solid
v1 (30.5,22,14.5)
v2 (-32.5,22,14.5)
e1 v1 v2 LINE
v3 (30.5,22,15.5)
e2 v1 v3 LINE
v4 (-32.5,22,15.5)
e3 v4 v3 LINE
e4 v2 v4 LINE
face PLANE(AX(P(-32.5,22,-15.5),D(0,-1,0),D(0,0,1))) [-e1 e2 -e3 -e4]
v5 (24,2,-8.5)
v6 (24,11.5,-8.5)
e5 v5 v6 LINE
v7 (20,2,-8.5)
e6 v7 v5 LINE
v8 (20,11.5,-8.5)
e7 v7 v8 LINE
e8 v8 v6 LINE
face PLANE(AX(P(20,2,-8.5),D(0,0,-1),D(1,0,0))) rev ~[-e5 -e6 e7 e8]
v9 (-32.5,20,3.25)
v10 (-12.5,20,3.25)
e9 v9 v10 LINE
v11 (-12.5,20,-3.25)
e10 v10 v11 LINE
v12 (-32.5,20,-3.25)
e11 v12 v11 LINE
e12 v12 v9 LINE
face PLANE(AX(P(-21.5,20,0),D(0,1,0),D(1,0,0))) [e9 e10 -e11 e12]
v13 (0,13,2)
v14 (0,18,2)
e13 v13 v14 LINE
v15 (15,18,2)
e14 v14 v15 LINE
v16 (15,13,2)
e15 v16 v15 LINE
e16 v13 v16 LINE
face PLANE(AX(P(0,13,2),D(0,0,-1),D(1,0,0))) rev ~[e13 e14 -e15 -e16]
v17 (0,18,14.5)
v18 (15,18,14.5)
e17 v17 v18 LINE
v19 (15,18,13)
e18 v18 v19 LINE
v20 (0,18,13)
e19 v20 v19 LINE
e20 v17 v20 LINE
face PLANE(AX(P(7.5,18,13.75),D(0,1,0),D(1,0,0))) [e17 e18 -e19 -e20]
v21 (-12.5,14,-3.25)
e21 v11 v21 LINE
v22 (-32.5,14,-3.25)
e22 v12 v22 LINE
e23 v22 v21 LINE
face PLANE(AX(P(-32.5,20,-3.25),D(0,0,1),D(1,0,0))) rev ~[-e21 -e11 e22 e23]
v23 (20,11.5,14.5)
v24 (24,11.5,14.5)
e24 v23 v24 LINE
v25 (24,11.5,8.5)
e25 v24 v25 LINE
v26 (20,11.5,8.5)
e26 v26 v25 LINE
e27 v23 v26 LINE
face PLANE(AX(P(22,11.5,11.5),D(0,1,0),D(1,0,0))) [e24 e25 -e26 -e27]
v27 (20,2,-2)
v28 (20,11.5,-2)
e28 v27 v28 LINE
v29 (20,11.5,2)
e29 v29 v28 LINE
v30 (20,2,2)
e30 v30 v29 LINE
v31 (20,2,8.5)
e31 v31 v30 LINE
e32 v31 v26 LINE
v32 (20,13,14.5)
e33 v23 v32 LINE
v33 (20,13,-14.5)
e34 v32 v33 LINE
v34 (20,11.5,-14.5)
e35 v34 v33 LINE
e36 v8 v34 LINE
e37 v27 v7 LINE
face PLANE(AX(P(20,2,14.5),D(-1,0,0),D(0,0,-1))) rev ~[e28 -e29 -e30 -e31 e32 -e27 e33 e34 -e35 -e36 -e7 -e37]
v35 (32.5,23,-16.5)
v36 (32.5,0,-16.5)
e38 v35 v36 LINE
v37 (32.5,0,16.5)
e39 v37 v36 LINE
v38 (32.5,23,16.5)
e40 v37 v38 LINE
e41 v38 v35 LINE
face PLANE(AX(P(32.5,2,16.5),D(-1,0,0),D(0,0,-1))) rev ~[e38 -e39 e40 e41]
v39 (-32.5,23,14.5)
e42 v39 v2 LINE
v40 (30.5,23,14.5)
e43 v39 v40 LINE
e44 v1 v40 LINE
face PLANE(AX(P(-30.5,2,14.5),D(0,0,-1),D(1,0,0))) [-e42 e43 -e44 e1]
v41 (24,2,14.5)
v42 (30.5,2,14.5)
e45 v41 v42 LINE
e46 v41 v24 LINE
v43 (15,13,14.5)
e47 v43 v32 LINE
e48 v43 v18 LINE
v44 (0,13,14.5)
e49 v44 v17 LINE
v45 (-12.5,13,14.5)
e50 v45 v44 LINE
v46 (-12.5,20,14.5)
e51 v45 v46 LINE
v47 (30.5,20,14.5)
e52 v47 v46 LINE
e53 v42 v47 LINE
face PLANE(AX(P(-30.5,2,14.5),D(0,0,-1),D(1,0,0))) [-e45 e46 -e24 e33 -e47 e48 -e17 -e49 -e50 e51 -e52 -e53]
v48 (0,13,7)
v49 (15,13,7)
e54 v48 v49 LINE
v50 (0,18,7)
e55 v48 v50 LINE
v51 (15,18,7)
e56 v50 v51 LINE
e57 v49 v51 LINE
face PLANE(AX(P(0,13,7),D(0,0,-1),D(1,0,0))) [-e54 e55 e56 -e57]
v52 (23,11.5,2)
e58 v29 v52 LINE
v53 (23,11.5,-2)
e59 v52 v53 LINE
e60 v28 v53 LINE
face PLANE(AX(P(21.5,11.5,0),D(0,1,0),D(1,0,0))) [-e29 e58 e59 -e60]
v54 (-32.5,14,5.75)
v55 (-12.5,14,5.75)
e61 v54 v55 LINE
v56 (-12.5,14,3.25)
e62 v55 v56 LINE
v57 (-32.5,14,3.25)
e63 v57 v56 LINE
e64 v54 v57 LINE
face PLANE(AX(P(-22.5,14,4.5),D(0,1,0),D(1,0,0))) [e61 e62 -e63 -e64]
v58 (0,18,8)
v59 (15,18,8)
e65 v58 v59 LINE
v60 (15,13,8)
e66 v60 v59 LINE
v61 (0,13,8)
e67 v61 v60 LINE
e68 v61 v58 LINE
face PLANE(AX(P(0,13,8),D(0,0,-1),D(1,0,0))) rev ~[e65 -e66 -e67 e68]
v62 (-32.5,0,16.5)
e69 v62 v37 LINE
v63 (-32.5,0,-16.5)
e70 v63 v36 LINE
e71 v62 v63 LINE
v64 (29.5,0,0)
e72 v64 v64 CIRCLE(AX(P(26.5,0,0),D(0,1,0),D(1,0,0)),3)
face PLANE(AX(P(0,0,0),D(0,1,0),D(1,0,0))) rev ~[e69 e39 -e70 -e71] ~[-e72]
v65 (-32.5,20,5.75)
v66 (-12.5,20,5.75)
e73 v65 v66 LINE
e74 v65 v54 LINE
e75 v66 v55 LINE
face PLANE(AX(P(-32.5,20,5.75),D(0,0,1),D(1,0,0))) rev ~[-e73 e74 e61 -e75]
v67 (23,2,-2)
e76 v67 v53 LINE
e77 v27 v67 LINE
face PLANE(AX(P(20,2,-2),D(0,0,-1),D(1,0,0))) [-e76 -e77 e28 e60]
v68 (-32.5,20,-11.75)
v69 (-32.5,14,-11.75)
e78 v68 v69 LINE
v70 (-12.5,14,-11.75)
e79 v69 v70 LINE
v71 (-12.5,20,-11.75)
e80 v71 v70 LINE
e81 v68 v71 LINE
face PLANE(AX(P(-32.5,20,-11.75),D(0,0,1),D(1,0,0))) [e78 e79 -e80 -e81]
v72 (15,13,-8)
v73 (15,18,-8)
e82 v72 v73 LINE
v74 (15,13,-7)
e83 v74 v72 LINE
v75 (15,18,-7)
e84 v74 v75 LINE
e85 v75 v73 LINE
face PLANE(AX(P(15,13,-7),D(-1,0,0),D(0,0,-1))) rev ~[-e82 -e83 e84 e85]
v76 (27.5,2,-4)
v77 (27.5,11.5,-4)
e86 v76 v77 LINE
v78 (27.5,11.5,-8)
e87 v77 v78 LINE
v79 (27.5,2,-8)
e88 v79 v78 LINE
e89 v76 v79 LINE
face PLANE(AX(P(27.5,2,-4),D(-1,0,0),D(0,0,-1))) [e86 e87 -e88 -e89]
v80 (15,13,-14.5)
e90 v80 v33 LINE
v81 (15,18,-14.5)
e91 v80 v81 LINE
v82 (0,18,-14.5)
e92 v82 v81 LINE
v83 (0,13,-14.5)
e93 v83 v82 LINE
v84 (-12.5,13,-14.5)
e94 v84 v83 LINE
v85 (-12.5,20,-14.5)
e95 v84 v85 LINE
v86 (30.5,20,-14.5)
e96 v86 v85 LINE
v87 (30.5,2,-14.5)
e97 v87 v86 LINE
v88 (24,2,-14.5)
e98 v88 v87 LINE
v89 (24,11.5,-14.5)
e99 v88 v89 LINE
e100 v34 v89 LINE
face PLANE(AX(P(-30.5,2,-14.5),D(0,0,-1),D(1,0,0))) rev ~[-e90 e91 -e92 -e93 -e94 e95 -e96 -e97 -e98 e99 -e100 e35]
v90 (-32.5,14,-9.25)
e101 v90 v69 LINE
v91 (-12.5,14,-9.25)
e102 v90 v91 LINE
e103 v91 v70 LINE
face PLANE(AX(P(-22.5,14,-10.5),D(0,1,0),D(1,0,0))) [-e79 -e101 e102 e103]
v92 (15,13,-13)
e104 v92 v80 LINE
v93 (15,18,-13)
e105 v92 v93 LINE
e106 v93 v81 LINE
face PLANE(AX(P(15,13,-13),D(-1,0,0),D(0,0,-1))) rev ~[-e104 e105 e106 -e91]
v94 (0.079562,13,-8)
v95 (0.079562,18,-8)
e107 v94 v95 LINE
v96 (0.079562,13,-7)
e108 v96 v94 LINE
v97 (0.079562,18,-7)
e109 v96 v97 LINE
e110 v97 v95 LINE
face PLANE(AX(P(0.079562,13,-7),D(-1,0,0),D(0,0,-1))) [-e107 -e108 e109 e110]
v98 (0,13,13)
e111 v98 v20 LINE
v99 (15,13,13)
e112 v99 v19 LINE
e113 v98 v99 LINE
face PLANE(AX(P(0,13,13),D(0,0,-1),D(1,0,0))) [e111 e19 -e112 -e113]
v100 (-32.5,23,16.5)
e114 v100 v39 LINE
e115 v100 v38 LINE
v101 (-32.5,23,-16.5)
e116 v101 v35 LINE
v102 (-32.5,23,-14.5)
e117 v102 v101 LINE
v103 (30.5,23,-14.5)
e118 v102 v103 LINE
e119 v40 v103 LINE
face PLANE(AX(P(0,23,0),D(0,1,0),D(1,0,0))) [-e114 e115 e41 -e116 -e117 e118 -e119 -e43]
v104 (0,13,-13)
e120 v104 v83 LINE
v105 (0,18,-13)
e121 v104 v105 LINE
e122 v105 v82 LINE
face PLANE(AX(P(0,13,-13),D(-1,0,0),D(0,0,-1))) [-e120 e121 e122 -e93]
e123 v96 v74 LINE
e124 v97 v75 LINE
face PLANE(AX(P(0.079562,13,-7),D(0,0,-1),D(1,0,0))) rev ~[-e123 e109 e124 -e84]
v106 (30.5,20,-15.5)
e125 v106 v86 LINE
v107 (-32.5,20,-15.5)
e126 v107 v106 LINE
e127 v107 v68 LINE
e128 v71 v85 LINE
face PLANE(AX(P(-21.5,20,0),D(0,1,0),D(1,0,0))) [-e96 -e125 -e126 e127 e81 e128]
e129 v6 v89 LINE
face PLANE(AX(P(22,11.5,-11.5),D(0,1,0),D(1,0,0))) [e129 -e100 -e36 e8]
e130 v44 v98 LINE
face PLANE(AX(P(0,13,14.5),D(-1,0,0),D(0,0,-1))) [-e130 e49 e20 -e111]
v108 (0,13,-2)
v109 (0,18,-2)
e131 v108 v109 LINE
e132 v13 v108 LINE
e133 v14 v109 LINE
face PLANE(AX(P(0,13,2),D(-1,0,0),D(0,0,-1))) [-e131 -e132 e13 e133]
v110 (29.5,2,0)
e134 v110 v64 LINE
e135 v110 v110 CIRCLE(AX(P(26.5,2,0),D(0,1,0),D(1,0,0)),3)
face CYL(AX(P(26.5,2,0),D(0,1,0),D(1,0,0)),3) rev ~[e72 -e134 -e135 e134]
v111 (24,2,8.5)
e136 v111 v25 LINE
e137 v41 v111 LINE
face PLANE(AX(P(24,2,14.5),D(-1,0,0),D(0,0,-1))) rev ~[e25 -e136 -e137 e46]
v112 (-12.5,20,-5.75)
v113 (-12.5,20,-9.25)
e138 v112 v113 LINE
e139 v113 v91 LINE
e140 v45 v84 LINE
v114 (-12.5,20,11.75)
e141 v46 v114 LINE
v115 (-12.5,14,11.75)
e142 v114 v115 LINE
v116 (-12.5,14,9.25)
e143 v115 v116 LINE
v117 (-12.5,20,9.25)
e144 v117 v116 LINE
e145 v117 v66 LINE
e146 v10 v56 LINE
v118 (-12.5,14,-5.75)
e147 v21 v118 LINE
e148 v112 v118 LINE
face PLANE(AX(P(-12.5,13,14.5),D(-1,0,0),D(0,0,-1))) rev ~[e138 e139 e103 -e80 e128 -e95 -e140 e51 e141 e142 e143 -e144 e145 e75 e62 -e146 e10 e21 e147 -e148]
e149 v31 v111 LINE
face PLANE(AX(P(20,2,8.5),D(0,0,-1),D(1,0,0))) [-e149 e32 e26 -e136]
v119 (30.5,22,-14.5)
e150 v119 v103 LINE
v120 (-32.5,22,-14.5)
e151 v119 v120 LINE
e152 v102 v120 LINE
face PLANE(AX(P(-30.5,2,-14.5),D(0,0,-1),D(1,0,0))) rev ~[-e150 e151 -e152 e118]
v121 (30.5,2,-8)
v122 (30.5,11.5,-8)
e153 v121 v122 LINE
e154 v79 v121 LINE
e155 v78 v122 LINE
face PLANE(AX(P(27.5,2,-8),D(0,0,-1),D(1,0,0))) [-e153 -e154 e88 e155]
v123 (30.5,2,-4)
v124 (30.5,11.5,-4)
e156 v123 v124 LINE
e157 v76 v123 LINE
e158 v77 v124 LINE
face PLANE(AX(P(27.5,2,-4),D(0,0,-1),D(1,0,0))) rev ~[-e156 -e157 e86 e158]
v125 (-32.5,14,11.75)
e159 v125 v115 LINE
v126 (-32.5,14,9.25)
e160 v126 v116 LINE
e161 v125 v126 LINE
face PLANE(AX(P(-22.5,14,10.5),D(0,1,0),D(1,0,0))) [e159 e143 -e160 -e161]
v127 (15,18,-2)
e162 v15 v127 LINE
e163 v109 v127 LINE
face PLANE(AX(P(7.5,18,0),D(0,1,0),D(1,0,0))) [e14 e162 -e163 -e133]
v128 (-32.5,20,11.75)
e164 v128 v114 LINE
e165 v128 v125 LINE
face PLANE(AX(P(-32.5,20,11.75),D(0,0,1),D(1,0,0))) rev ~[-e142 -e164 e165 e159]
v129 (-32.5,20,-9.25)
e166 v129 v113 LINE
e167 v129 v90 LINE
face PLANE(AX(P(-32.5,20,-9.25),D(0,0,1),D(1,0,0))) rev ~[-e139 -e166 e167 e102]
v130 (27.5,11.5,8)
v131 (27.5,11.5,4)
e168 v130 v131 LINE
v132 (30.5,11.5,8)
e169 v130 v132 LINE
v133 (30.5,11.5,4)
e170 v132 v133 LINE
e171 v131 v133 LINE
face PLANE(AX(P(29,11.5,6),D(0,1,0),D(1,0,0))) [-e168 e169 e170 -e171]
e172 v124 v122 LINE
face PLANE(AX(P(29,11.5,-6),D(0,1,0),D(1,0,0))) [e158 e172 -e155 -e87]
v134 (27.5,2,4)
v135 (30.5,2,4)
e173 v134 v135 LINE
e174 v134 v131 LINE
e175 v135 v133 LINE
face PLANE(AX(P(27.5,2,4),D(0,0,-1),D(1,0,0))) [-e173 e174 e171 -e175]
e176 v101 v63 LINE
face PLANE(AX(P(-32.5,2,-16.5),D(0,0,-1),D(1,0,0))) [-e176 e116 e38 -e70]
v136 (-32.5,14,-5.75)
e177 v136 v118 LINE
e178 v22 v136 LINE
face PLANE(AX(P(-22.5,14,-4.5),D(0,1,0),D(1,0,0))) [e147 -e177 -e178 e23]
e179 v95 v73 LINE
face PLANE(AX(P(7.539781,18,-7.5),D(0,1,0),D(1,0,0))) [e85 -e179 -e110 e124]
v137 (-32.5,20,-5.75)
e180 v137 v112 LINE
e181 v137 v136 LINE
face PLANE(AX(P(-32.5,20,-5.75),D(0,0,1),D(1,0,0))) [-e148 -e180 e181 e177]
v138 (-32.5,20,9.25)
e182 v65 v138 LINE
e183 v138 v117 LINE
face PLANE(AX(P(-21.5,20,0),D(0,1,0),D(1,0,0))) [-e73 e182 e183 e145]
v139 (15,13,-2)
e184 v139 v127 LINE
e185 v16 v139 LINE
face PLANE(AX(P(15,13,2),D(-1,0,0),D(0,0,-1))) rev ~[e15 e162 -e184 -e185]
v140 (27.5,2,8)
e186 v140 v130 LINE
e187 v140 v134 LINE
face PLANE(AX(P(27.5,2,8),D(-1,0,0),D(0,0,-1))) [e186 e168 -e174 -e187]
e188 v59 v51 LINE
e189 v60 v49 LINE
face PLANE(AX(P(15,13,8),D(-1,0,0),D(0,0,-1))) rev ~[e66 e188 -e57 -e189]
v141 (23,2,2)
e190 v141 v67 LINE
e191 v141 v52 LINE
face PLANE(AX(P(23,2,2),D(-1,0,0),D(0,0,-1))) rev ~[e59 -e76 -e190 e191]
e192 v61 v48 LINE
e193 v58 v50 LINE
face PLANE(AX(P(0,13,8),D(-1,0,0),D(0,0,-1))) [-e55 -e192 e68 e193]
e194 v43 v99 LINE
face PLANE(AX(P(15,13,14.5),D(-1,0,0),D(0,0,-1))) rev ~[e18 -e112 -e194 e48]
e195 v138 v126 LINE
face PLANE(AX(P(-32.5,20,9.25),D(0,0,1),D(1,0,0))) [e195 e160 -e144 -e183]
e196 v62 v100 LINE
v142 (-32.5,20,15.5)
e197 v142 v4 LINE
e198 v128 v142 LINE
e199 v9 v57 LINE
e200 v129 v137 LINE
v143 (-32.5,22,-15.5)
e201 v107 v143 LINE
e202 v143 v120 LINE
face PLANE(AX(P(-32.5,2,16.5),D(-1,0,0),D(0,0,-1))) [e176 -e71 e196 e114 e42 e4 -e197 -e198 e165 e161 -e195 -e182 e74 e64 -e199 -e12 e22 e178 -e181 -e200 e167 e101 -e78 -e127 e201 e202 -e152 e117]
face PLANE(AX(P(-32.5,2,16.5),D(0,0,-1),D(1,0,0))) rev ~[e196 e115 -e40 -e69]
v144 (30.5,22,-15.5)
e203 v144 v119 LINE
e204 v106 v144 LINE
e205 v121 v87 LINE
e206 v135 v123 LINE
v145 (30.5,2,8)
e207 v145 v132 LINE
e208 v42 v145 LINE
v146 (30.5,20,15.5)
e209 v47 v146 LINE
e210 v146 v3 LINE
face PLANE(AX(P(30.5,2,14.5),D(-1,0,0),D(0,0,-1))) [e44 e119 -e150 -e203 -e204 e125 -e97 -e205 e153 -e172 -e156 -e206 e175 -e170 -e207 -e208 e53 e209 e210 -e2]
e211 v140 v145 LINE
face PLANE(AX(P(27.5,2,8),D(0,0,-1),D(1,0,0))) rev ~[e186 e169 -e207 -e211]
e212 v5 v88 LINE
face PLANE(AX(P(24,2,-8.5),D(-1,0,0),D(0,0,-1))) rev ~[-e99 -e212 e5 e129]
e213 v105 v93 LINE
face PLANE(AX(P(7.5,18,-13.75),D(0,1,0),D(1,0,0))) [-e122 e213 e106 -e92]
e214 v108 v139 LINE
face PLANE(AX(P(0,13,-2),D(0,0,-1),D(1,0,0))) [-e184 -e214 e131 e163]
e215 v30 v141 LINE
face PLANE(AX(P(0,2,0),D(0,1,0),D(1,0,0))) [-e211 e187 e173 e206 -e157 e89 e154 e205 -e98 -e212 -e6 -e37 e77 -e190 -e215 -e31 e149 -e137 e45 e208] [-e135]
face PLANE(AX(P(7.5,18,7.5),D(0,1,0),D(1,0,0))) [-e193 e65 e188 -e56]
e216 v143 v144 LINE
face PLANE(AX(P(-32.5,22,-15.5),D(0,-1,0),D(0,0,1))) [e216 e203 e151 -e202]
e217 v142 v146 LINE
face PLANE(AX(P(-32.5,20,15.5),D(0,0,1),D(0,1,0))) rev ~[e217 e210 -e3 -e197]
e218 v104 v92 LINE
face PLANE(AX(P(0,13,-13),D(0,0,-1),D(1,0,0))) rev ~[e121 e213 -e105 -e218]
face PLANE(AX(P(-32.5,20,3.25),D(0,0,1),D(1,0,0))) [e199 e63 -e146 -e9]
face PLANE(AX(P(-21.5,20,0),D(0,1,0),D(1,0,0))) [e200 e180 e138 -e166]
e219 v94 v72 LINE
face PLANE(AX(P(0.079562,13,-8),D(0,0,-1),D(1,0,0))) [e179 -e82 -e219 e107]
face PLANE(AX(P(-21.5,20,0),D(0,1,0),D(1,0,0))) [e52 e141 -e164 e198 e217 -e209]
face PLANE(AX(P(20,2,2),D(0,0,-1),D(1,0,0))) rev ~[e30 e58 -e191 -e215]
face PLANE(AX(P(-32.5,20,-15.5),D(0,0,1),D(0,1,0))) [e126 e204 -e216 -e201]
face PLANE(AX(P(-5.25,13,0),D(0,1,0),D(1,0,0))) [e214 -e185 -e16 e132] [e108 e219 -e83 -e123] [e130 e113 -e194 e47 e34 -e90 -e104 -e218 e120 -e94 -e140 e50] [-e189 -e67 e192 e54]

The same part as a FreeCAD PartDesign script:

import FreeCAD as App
import Part
import Sketcher
Q = App.Units.Quantity


def add_polygon(sketch, points):
    """Adds a closed chain of lines whose ends are joined by coincident constraints."""
    first, n = sketch.GeometryCount, len(points)
    for a, b in zip(points, points[1:] + points[:1]):
        sketch.addGeometry(Part.LineSegment(App.Vector(*a, 0), App.Vector(*b, 0)), False)
    for i in range(n):
        sketch.addConstraint(Sketcher.Constraint("Coincident", first + i, 2, first + (i + 1) % n, 1))

doc = App.newDocument("Part")
body = doc.addObject("PartDesign::Body", "Body")

# Sketch on XZ plane
sketch1 = body.newObject("Sketcher::SketchObject", "Sketch")
sketch1.AttachmentSupport = (doc.getObject("XZ_Plane"), [""])
sketch1.MapMode = "FlatFace"
add_polygon(sketch1, [(-32.5, -16.5), (-32.5, 16.5), (32.5, 16.5), (32.5, -16.5)])  # lines 0-3
sketch1.addConstraint(Sketcher.Constraint("Vertical", 0))
sketch1.addConstraint(Sketcher.Constraint("Horizontal", 1))
sketch1.addConstraint(Sketcher.Constraint("Vertical", 2))
sketch1.addConstraint(Sketcher.Constraint("Horizontal", 3))
sketch1.addConstraint(Sketcher.Constraint("Symmetric", 0, 2, 2, 2, -1, 1))
sketch1.addConstraint(Sketcher.Constraint("DistanceX", 1, 1, 1, 2, Q("65 mm")))
sketch1.addConstraint(Sketcher.Constraint("DistanceY", 0, 1, 0, 2, Q("33 mm")))
pad1 = body.newObject("PartDesign::Pad", "Pad")
pad1.Profile = sketch1
pad1.Length = 2
pad1.Reversed = True

# Sketch on XZ plane
sketch2 = body.newObject("Sketcher::SketchObject", "Sketch001")
sketch2.AttachmentSupport = (doc.getObject("XZ_Plane"), [""])
sketch2.MapMode = "FlatFace"
sketch2.AttachmentOffset = App.Placement(App.Vector(0, 0, -2), App.Rotation())
add_polygon(sketch2, [(-32.5, -16.5), (-32.5, 16.5), (32.5, 16.5), (32.5, -16.5)])  # lines 0-3
add_polygon(sketch2, [(30.5, 14.5), (-30.5, 14.5), (-30.5, -14.5), (30.5, -14.5)])  # lines 4-7
sketch2.addConstraint(Sketcher.Constraint("Vertical", 0))
sketch2.addConstraint(Sketcher.Constraint("Horizontal", 1))
sketch2.addConstraint(Sketcher.Constraint("Vertical", 2))
sketch2.addConstraint(Sketcher.Constraint("Horizontal", 3))
sketch2.addConstraint(Sketcher.Constraint("Horizontal", 4))
sketch2.addConstraint(Sketcher.Constraint("Vertical", 5))
sketch2.addConstraint(Sketcher.Constraint("Horizontal", 6))
sketch2.addConstraint(Sketcher.Constraint("Vertical", 7))
sketch2.addConstraint(Sketcher.Constraint("Symmetric", 0, 2, 2, 2, -1, 1))
sketch2.addConstraint(Sketcher.Constraint("Symmetric", 4, 2, 6, 2, -1, 1))
sketch2.addConstraint(Sketcher.Constraint("DistanceX", 1, 1, 1, 2, Q("65 mm")))
sketch2.addConstraint(Sketcher.Constraint("DistanceX", 4, 2, 4, 1, Q("61 mm")))
sketch2.addConstraint(Sketcher.Constraint("DistanceY", 0, 1, 0, 2, Q("33 mm")))
sketch2.addConstraint(Sketcher.Constraint("DistanceY", 5, 2, 5, 1, Q("29 mm")))
pad2 = body.newObject("PartDesign::Pad", "Pad001")
pad2.Profile = sketch2
pad2.Length = 21
pad2.Reversed = True

# Sketch on XZ plane
sketch3 = body.newObject("Sketcher::SketchObject", "Sketch002")
sketch3.AttachmentSupport = (doc.getObject("XZ_Plane"), [""])
sketch3.MapMode = "FlatFace"
sketch3.AttachmentOffset = App.Placement(App.Vector(0, 0, -2), App.Rotation())
add_polygon(sketch3, [(-30.5, -14.5), (-30.5, 14.5), (20, 14.5), (20, -14.5)])  # lines 0-3
sketch3.addConstraint(Sketcher.Constraint("Vertical", 0))
sketch3.addConstraint(Sketcher.Constraint("Horizontal", 1))
sketch3.addConstraint(Sketcher.Constraint("Vertical", 2))
sketch3.addConstraint(Sketcher.Constraint("Horizontal", 3))
sketch3.addConstraint(Sketcher.Constraint("DistanceY", 0, 1, 0, 2, Q("29 mm")))
sketch3.addConstraint(Sketcher.Constraint("DistanceX", 1, 1, 1, 2, Q("50.5 mm")))
sketch3.addConstraint(Sketcher.Constraint("DistanceX", -1, 1, 1, 2, Q("20 mm")))
sketch3.addConstraint(Sketcher.Constraint("DistanceY", -1, 1, 0, 2, Q("14.5 mm")))
pad3 = body.newObject("PartDesign::Pad", "Pad002")
pad3.Profile = sketch3
pad3.Length = 11
pad3.Reversed = True

# Sketch on XZ plane
sketch4 = body.newObject("Sketcher::SketchObject", "Sketch003")
sketch4.AttachmentSupport = (doc.getObject("XZ_Plane"), [""])
sketch4.MapMode = "FlatFace"
sketch4.AttachmentOffset = App.Placement(App.Vector(0, 0, -2), App.Rotation())
sketch4.addGeometry(Part.Circle(App.Vector(26.5, 0, 0), App.Vector(0, 0, 1), 3), False)
sketch4.addConstraint(Sketcher.Constraint("PointOnObject", 0, 3, -1))
sketch4.addConstraint(Sketcher.Constraint("Diameter", 0, Q("6 mm")))
sketch4.addConstraint(Sketcher.Constraint("DistanceX", -1, 1, 0, 3, Q("26.5 mm")))
pocket1 = body.newObject("PartDesign::Pocket", "Pocket")
pocket1.Profile = sketch4
pocket1.Length = 2
pocket1.Reversed = True

# Sketch on XZ plane
sketch5 = body.newObject("Sketcher::SketchObject", "Sketch004")
sketch5.AttachmentSupport = (doc.getObject("XZ_Plane"), [""])
sketch5.MapMode = "FlatFace"
sketch5.AttachmentOffset = App.Placement(App.Vector(0, 0, -2), App.Rotation())
add_polygon(sketch5, [(20, -14.5), (20, -8.5), (24, -8.5), (24, -14.5)])  # lines 0-3
sketch5.addConstraint(Sketcher.Constraint("Vertical", 0))
sketch5.addConstraint(Sketcher.Constraint("Horizontal", 1))
sketch5.addConstraint(Sketcher.Constraint("Vertical", 2))
sketch5.addConstraint(Sketcher.Constraint("Horizontal", 3))
sketch5.addConstraint(Sketcher.Constraint("DistanceX", 1, 1, 1, 2, Q("4 mm")))
sketch5.addConstraint(Sketcher.Constraint("DistanceY", 0, 1, 0, 2, Q("6 mm")))
sketch5.addConstraint(Sketcher.Constraint("DistanceX", -1, 1, 0, 2, Q("20 mm")))
sketch5.addConstraint(Sketcher.Constraint("DistanceY", 0, 2, -1, 1, Q("8.5 mm")))
pad4 = body.newObject("PartDesign::Pad", "Pad003")
pad4.Profile = sketch5
pad4.Length = 9.5
pad4.Reversed = True

# Sketch on XZ plane
sketch6 = body.newObject("Sketcher::SketchObject", "Sketch005")
sketch6.AttachmentSupport = (doc.getObject("XZ_Plane"), [""])
sketch6.MapMode = "FlatFace"
sketch6.AttachmentOffset = App.Placement(App.Vector(0, 0, -2), App.Rotation())
add_polygon(sketch6, [(20, 8.5), (20, 14.5), (24, 14.5), (24, 8.5)])  # lines 0-3
sketch6.addConstraint(Sketcher.Constraint("Vertical", 0))
sketch6.addConstraint(Sketcher.Constraint("Horizontal", 1))
sketch6.addConstraint(Sketcher.Constraint("Vertical", 2))
sketch6.addConstraint(Sketcher.Constraint("Horizontal", 3))
sketch6.addConstraint(Sketcher.Constraint("DistanceX", 1, 1, 1, 2, Q("4 mm")))
sketch6.addConstraint(Sketcher.Constraint("DistanceY", 0, 1, 0, 2, Q("6 mm")))
sketch6.addConstraint(Sketcher.Constraint("DistanceX", -1, 1, 0, 2, Q("20 mm")))
sketch6.addConstraint(Sketcher.Constraint("DistanceY", -1, 1, 0, 2, Q("14.5 mm")))
pad5 = body.newObject("PartDesign::Pad", "Pad004")
pad5.Profile = sketch6
pad5.Length = 9.5
pad5.Reversed = True

# Sketch on XZ plane
sketch7 = body.newObject("Sketcher::SketchObject", "Sketch006")
sketch7.AttachmentSupport = (doc.getObject("XZ_Plane"), [""])
sketch7.MapMode = "FlatFace"
sketch7.AttachmentOffset = App.Placement(App.Vector(0, 0, -2), App.Rotation())
add_polygon(sketch7, [(27.5, -8), (27.5, -4), (30.5, -4), (30.5, -8)])  # lines 0-3
sketch7.addConstraint(Sketcher.Constraint("Vertical", 0))
sketch7.addConstraint(Sketcher.Constraint("Horizontal", 1))
sketch7.addConstraint(Sketcher.Constraint("Vertical", 2))
sketch7.addConstraint(Sketcher.Constraint("Horizontal", 3))
sketch7.addConstraint(Sketcher.Constraint("DistanceX", 1, 1, 1, 2, Q("3 mm")))
sketch7.addConstraint(Sketcher.Constraint("DistanceY", 0, 1, 0, 2, Q("4 mm")))
sketch7.addConstraint(Sketcher.Constraint("DistanceY", 0, 2, -1, 1, Q("4 mm")))
sketch7.addConstraint(Sketcher.Constraint("DistanceX", -1, 1, 0, 2, Q("27.5 mm")))
pad6 = body.newObject("PartDesign::Pad", "Pad005")
pad6.Profile = sketch7
pad6.Length = 9.5
pad6.Reversed = True

# Sketch on XZ plane
sketch8 = body.newObject("Sketcher::SketchObject", "Sketch007")
sketch8.AttachmentSupport = (doc.getObject("XZ_Plane"), [""])
sketch8.MapMode = "FlatFace"
sketch8.AttachmentOffset = App.Placement(App.Vector(0, 0, -2), App.Rotation())
add_polygon(sketch8, [(27.5, 4), (27.5, 8), (30.5, 8), (30.5, 4)])  # lines 0-3
sketch8.addConstraint(Sketcher.Constraint("Vertical", 0))
sketch8.addConstraint(Sketcher.Constraint("Horizontal", 1))
sketch8.addConstraint(Sketcher.Constraint("Vertical", 2))
sketch8.addConstraint(Sketcher.Constraint("Horizontal", 3))
sketch8.addConstraint(Sketcher.Constraint("DistanceX", 1, 1, 1, 2, Q("3 mm")))
sketch8.addConstraint(Sketcher.Constraint("DistanceY", 0, 1, 0, 2, Q("4 mm")))
sketch8.addConstraint(Sketcher.Constraint("DistanceY", -1, 1, 0, 2, Q("8 mm")))
sketch8.addConstraint(Sketcher.Constraint("DistanceX", -1, 1, 0, 2, Q("27.5 mm")))
pad7 = body.newObject("PartDesign::Pad", "Pad006")
pad7.Profile = sketch8
pad7.Length = 9.5
pad7.Reversed = True

# Sketch on XZ plane
sketch9 = body.newObject("Sketcher::SketchObject", "Sketch008")
sketch9.AttachmentSupport = (doc.getObject("XZ_Plane"), [""])
sketch9.MapMode = "FlatFace"
sketch9.AttachmentOffset = App.Placement(App.Vector(0, 0, -2), App.Rotation())
add_polygon(sketch9, [(20, -2), (20, 2), (23, 2), (23, -2)])  # lines 0-3
sketch9.addConstraint(Sketcher.Constraint("Vertical", 0))
sketch9.addConstraint(Sketcher.Constraint("Horizontal", 1))
sketch9.addConstraint(Sketcher.Constraint("Vertical", 2))
sketch9.addConstraint(Sketcher.Constraint("Horizontal", 3))
sketch9.addConstraint(Sketcher.Constraint("DistanceX", 1, 1, 1, 2, Q("3 mm")))
sketch9.addConstraint(Sketcher.Constraint("DistanceY", 0, 1, 0, 2, Q("4 mm")))
sketch9.addConstraint(Sketcher.Constraint("DistanceX", -1, 1, 0, 2, Q("20 mm")))
sketch9.addConstraint(Sketcher.Constraint("DistanceY", -1, 1, 0, 2, Q("2 mm")))
pad8 = body.newObject("PartDesign::Pad", "Pad007")
pad8.Profile = sketch9
pad8.Length = 9.5
pad8.Reversed = True

# Sketch on XZ plane
sketch10 = body.newObject("Sketcher::SketchObject", "Sketch009")
sketch10.AttachmentSupport = (doc.getObject("XZ_Plane"), [""])
sketch10.MapMode = "FlatFace"
sketch10.AttachmentOffset = App.Placement(App.Vector(0, 0, -23), App.Rotation())
add_polygon(sketch10, [(-32.5, -14.5), (-32.5, 14.5), (-30.5, 14.5), (-30.5, -14.5)])  # lines 0-3
sketch10.addConstraint(Sketcher.Constraint("Vertical", 0))
sketch10.addConstraint(Sketcher.Constraint("Horizontal", 1))
sketch10.addConstraint(Sketcher.Constraint("Vertical", 2))
sketch10.addConstraint(Sketcher.Constraint("Horizontal", 3))
sketch10.addConstraint(Sketcher.Constraint("DistanceX", 1, 1, 1, 2, Q("2 mm")))
sketch10.addConstraint(Sketcher.Constraint("DistanceY", 0, 1, 0, 2, Q("29 mm")))
sketch10.addConstraint(Sketcher.Constraint("DistanceX", 0, 2, -1, 1, Q("32.5 mm")))
sketch10.addConstraint(Sketcher.Constraint("DistanceY", -1, 1, 0, 2, Q("14.5 mm")))
pocket2 = body.newObject("PartDesign::Pocket", "Pocket001")
pocket2.Profile = sketch10
pocket2.Length = 3
pocket2.Reversed = True

# Sketch on YZ plane
sketch11 = body.newObject("Sketcher::SketchObject", "Sketch010")
sketch11.AttachmentSupport = (doc.getObject("YZ_Plane"), [""])
sketch11.MapMode = "FlatFace"
sketch11.AttachmentOffset = App.Placement(App.Vector(0, 0, -32.5), App.Rotation())
add_polygon(sketch11, [(22, -15.5), (20, -15.5), (20, 15.5), (22, 15.5)])  # lines 0-3
sketch11.addConstraint(Sketcher.Constraint("Horizontal", 0))
sketch11.addConstraint(Sketcher.Constraint("Vertical", 1))
sketch11.addConstraint(Sketcher.Constraint("Horizontal", 2))
sketch11.addConstraint(Sketcher.Constraint("Vertical", 3))
sketch11.addConstraint(Sketcher.Constraint("DistanceX", 0, 2, 0, 1, Q("2 mm")))
sketch11.addConstraint(Sketcher.Constraint("DistanceY", 1, 1, 1, 2, Q("31 mm")))
sketch11.addConstraint(Sketcher.Constraint("DistanceX", -1, 1, 0, 2, Q("20 mm")))
sketch11.addConstraint(Sketcher.Constraint("DistanceY", 0, 2, -1, 1, Q("15.5 mm")))
pocket3 = body.newObject("PartDesign::Pocket", "Pocket002")
pocket3.Profile = sketch11
pocket3.Length = 63
pocket3.Reversed = True

# Sketch on XZ plane
sketch12 = body.newObject("Sketcher::SketchObject", "Sketch011")
sketch12.AttachmentSupport = (doc.getObject("XZ_Plane"), [""])
sketch12.MapMode = "FlatFace"
sketch12.AttachmentOffset = App.Placement(App.Vector(0, 0, -13), App.Rotation())
add_polygon(sketch12, [(0, -14.5), (0, -13), (15, -13), (15, -14.5)])  # lines 0-3
sketch12.addConstraint(Sketcher.Constraint("Vertical", 0))
sketch12.addConstraint(Sketcher.Constraint("Horizontal", 1))
sketch12.addConstraint(Sketcher.Constraint("Vertical", 2))
sketch12.addConstraint(Sketcher.Constraint("Horizontal", 3))
sketch12.addConstraint(Sketcher.Constraint("PointOnObject", 0, 2, -2))
sketch12.addConstraint(Sketcher.Constraint("DistanceX", 1, 1, 1, 2, Q("15 mm")))
sketch12.addConstraint(Sketcher.Constraint("DistanceY", 0, 1, 0, 2, Q("1.5 mm")))
sketch12.addConstraint(Sketcher.Constraint("DistanceY", 0, 2, -1, 1, Q("13 mm")))
pad9 = body.newObject("PartDesign::Pad", "Pad008")
pad9.Profile = sketch12
pad9.Length = 5
pad9.Reversed = True

# Sketch on XZ plane
sketch13 = body.newObject("Sketcher::SketchObject", "Sketch012")
sketch13.AttachmentSupport = (doc.getObject("XZ_Plane"), [""])
sketch13.MapMode = "FlatFace"
sketch13.AttachmentOffset = App.Placement(App.Vector(0, 0, -13), App.Rotation())
add_polygon(sketch13, [(0, 13), (0, 14.5), (15, 14.5), (15, 13)])  # lines 0-3
sketch13.addConstraint(Sketcher.Constraint("Vertical", 0))
sketch13.addConstraint(Sketcher.Constraint("Horizontal", 1))
sketch13.addConstraint(Sketcher.Constraint("Vertical", 2))
sketch13.addConstraint(Sketcher.Constraint("Horizontal", 3))
sketch13.addConstraint(Sketcher.Constraint("PointOnObject", 0, 2, -2))
sketch13.addConstraint(Sketcher.Constraint("DistanceX", 1, 1, 1, 2, Q("15 mm")))
sketch13.addConstraint(Sketcher.Constraint("DistanceY", 0, 1, 0, 2, Q("1.5 mm")))
sketch13.addConstraint(Sketcher.Constraint("DistanceY", -1, 1, 2, 2, Q("13 mm")))
pad10 = body.newObject("PartDesign::Pad", "Pad009")
pad10.Profile = sketch13
pad10.Length = 5
pad10.Reversed = True

# Sketch on XZ plane
sketch14 = body.newObject("Sketcher::SketchObject", "Sketch013")
sketch14.AttachmentSupport = (doc.getObject("XZ_Plane"), [""])
sketch14.MapMode = "FlatFace"
sketch14.AttachmentOffset = App.Placement(App.Vector(0, 0, -13), App.Rotation())
add_polygon(sketch14, [(0.079562, -8), (0.079562, -7), (15, -7), (15, -8)])  # lines 0-3
sketch14.addConstraint(Sketcher.Constraint("Vertical", 0))
sketch14.addConstraint(Sketcher.Constraint("Horizontal", 1))
sketch14.addConstraint(Sketcher.Constraint("Vertical", 2))
sketch14.addConstraint(Sketcher.Constraint("Horizontal", 3))
sketch14.addConstraint(Sketcher.Constraint("DistanceY", 0, 1, 0, 2, Q("1 mm")))
sketch14.addConstraint(Sketcher.Constraint("DistanceY", 0, 2, -1, 1, Q("7 mm")))
sketch14.addConstraint(Sketcher.Constraint("DistanceX", -1, 1, 1, 2, Q("15 mm")))
sketch14.addConstraint(Sketcher.Constraint("DistanceX", 1, 1, 1, 2, Q("14.920438 mm")))
pad11 = body.newObject("PartDesign::Pad", "Pad010")
pad11.Profile = sketch14
pad11.Length = 5
pad11.Reversed = True

# Sketch on XZ plane
sketch15 = body.newObject("Sketcher::SketchObject", "Sketch014")
sketch15.AttachmentSupport = (doc.getObject("XZ_Plane"), [""])
sketch15.MapMode = "FlatFace"
sketch15.AttachmentOffset = App.Placement(App.Vector(0, 0, -13), App.Rotation())
add_polygon(sketch15, [(0, 7), (0, 8), (15, 8), (15, 7)])  # lines 0-3
sketch15.addConstraint(Sketcher.Constraint("Vertical", 0))
sketch15.addConstraint(Sketcher.Constraint("Horizontal", 1))
sketch15.addConstraint(Sketcher.Constraint("Vertical", 2))
sketch15.addConstraint(Sketcher.Constraint("Horizontal", 3))
sketch15.addConstraint(Sketcher.Constraint("PointOnObject", 0, 2, -2))
sketch15.addConstraint(Sketcher.Constraint("DistanceX", 1, 1, 1, 2, Q("15 mm")))
sketch15.addConstraint(Sketcher.Constraint("DistanceY", 0, 1, 0, 2, Q("1 mm")))
sketch15.addConstraint(Sketcher.Constraint("DistanceY", -1, 1, 0, 2, Q("8 mm")))
pad12 = body.newObject("PartDesign::Pad", "Pad011")
pad12.Profile = sketch15
pad12.Length = 5
pad12.Reversed = True

# Sketch on XZ plane
sketch16 = body.newObject("Sketcher::SketchObject", "Sketch015")
sketch16.AttachmentSupport = (doc.getObject("XZ_Plane"), [""])
sketch16.MapMode = "FlatFace"
sketch16.AttachmentOffset = App.Placement(App.Vector(0, 0, -13), App.Rotation())
add_polygon(sketch16, [(0, -2), (0, 2), (15, 2), (15, -2)])  # lines 0-3
sketch16.addConstraint(Sketcher.Constraint("Vertical", 0))
sketch16.addConstraint(Sketcher.Constraint("Horizontal", 1))
sketch16.addConstraint(Sketcher.Constraint("Vertical", 2))
sketch16.addConstraint(Sketcher.Constraint("Horizontal", 3))
sketch16.addConstraint(Sketcher.Constraint("Symmetric", 0, 2, 3, 2, -1, 1))
sketch16.addConstraint(Sketcher.Constraint("DistanceX", 1, 1, 1, 2, Q("15 mm")))
sketch16.addConstraint(Sketcher.Constraint("DistanceY", 0, 1, 0, 2, Q("4 mm")))
pad13 = body.newObject("PartDesign::Pad", "Pad012")
pad13.Profile = sketch16
pad13.Length = 5
pad13.Reversed = True

# Sketch on XZ plane
sketch17 = body.newObject("Sketcher::SketchObject", "Sketch016")
sketch17.AttachmentSupport = (doc.getObject("XZ_Plane"), [""])
sketch17.MapMode = "FlatFace"
sketch17.AttachmentOffset = App.Placement(App.Vector(0, 0, -13), App.Rotation())
add_polygon(sketch17, [(-30.5, -14.5), (-30.5, 14.5), (-12.5, 14.5), (-12.5, -14.5)])  # lines 0-3
sketch17.addConstraint(Sketcher.Constraint("Vertical", 0))
sketch17.addConstraint(Sketcher.Constraint("Horizontal", 1))
sketch17.addConstraint(Sketcher.Constraint("Vertical", 2))
sketch17.addConstraint(Sketcher.Constraint("Horizontal", 3))
sketch17.addConstraint(Sketcher.Constraint("DistanceX", 1, 1, 1, 2, Q("18 mm")))
sketch17.addConstraint(Sketcher.Constraint("DistanceY", 0, 1, 0, 2, Q("29 mm")))
sketch17.addConstraint(Sketcher.Constraint("DistanceX", 0, 2, -1, 1, Q("30.5 mm")))
sketch17.addConstraint(Sketcher.Constraint("DistanceY", -1, 1, 0, 2, Q("14.5 mm")))
pad14 = body.newObject("PartDesign::Pad", "Pad013")
pad14.Profile = sketch17
pad14.Length = 7
pad14.Reversed = True

# Sketch on XZ plane
sketch18 = body.newObject("Sketcher::SketchObject", "Sketch017")
sketch18.AttachmentSupport = (doc.getObject("XZ_Plane"), [""])
sketch18.MapMode = "FlatFace"
sketch18.AttachmentOffset = App.Placement(App.Vector(0, 0, -20), App.Rotation())
add_polygon(sketch18, [(-32.5, -11.75), (-32.5, -9.25), (-12.5, -9.25), (-12.5, -11.75)])  # lines 0-3
sketch18.addConstraint(Sketcher.Constraint("Vertical", 0))
sketch18.addConstraint(Sketcher.Constraint("Horizontal", 1))
sketch18.addConstraint(Sketcher.Constraint("Vertical", 2))
sketch18.addConstraint(Sketcher.Constraint("Horizontal", 3))
sketch18.addConstraint(Sketcher.Constraint("DistanceX", 1, 1, 1, 2, Q("20 mm")))
sketch18.addConstraint(Sketcher.Constraint("DistanceY", 0, 1, 0, 2, Q("2.5 mm")))
sketch18.addConstraint(Sketcher.Constraint("DistanceX", 0, 2, -1, 1, Q("32.5 mm")))
sketch18.addConstraint(Sketcher.Constraint("DistanceY", 0, 2, -1, 1, Q("9.25 mm")))
pocket4 = body.newObject("PartDesign::Pocket", "Pocket003")
pocket4.Profile = sketch18
pocket4.Length = 6
pocket4.Reversed = True

# Sketch on XZ plane
sketch19 = body.newObject("Sketcher::SketchObject", "Sketch018")
sketch19.AttachmentSupport = (doc.getObject("XZ_Plane"), [""])
sketch19.MapMode = "FlatFace"
sketch19.AttachmentOffset = App.Placement(App.Vector(0, 0, -20), App.Rotation())
add_polygon(sketch19, [(-32.5, 9.25), (-32.5, 11.75), (-12.5, 11.75), (-12.5, 9.25)])  # lines 0-3
sketch19.addConstraint(Sketcher.Constraint("Vertical", 0))
sketch19.addConstraint(Sketcher.Constraint("Horizontal", 1))
sketch19.addConstraint(Sketcher.Constraint("Vertical", 2))
sketch19.addConstraint(Sketcher.Constraint("Horizontal", 3))
sketch19.addConstraint(Sketcher.Constraint("DistanceX", 1, 1, 1, 2, Q("20 mm")))
sketch19.addConstraint(Sketcher.Constraint("DistanceY", 0, 1, 0, 2, Q("2.5 mm")))
sketch19.addConstraint(Sketcher.Constraint("DistanceX", 0, 2, -1, 1, Q("32.5 mm")))
sketch19.addConstraint(Sketcher.Constraint("DistanceY", -1, 1, 0, 2, Q("11.75 mm")))
pocket5 = body.newObject("PartDesign::Pocket", "Pocket004")
pocket5.Profile = sketch19
pocket5.Length = 6
pocket5.Reversed = True

# Sketch on XZ plane
sketch20 = body.newObject("Sketcher::SketchObject", "Sketch019")
sketch20.AttachmentSupport = (doc.getObject("XZ_Plane"), [""])
sketch20.MapMode = "FlatFace"
sketch20.AttachmentOffset = App.Placement(App.Vector(0, 0, -20), App.Rotation())
add_polygon(sketch20, [(-32.5, -5.75), (-32.5, -3.25), (-12.5, -3.25), (-12.5, -5.75)])  # lines 0-3
sketch20.addConstraint(Sketcher.Constraint("Vertical", 0))
sketch20.addConstraint(Sketcher.Constraint("Horizontal", 1))
sketch20.addConstraint(Sketcher.Constraint("Vertical", 2))
sketch20.addConstraint(Sketcher.Constraint("Horizontal", 3))
sketch20.addConstraint(Sketcher.Constraint("DistanceX", 1, 1, 1, 2, Q("20 mm")))
sketch20.addConstraint(Sketcher.Constraint("DistanceY", 0, 1, 0, 2, Q("2.5 mm")))
sketch20.addConstraint(Sketcher.Constraint("DistanceX", 0, 2, -1, 1, Q("32.5 mm")))
sketch20.addConstraint(Sketcher.Constraint("DistanceY", 0, 2, -1, 1, Q("3.25 mm")))
pocket6 = body.newObject("PartDesign::Pocket", "Pocket005")
pocket6.Profile = sketch20
pocket6.Length = 6
pocket6.Reversed = True

# Sketch on XZ plane
sketch21 = body.newObject("Sketcher::SketchObject", "Sketch020")
sketch21.AttachmentSupport = (doc.getObject("XZ_Plane"), [""])
sketch21.MapMode = "FlatFace"
sketch21.AttachmentOffset = App.Placement(App.Vector(0, 0, -20), App.Rotation())
add_polygon(sketch21, [(-32.5, 3.25), (-32.5, 5.75), (-12.5, 5.75), (-12.5, 3.25)])  # lines 0-3
sketch21.addConstraint(Sketcher.Constraint("Vertical", 0))
sketch21.addConstraint(Sketcher.Constraint("Horizontal", 1))
sketch21.addConstraint(Sketcher.Constraint("Vertical", 2))
sketch21.addConstraint(Sketcher.Constraint("Horizontal", 3))
sketch21.addConstraint(Sketcher.Constraint("DistanceX", 1, 1, 1, 2, Q("20 mm")))
sketch21.addConstraint(Sketcher.Constraint("DistanceY", 0, 1, 0, 2, Q("2.5 mm")))
sketch21.addConstraint(Sketcher.Constraint("DistanceX", 0, 2, -1, 1, Q("32.5 mm")))
sketch21.addConstraint(Sketcher.Constraint("DistanceY", -1, 1, 0, 2, Q("5.75 mm")))
pocket7 = body.newObject("PartDesign::Pocket", "Pocket006")
pocket7.Profile = sketch21
pocket7.Length = 6
pocket7.Reversed = True

doc.recompute()
